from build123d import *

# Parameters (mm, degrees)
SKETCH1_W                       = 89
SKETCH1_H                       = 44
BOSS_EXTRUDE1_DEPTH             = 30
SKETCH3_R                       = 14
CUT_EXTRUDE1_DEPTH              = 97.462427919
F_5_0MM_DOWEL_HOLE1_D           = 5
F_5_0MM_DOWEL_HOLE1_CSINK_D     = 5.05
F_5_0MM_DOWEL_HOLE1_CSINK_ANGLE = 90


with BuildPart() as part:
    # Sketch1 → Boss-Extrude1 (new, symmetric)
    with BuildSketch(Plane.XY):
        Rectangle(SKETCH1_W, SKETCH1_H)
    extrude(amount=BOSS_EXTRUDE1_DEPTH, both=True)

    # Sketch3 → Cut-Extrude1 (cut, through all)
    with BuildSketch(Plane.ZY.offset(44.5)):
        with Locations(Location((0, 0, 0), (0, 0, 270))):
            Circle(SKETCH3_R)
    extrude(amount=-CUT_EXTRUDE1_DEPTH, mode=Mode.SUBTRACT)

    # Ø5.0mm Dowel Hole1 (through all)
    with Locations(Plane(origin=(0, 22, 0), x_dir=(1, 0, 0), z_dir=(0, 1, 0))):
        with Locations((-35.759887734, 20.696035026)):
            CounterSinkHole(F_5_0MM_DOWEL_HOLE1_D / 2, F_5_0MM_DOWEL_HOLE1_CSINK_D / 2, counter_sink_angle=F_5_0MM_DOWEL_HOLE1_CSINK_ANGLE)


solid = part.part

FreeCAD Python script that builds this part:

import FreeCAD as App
import Part
import Sketcher

V = App.Vector


def add_polygon(sketch, points):
    """Adds a closed chain of lines whose ends are joined by coincident constraints."""
    first, n = sketch.GeometryCount, len(points)
    for a, b in zip(points, points[1:] + points[:1]):
        sketch.addGeometry(Part.LineSegment(App.Vector(*a, 0), App.Vector(*b, 0)), False)
    for i in range(n):
        sketch.addConstraint(Sketcher.Constraint("Coincident", first + i, 2, first + (i + 1) % n, 1))

doc = App.newDocument("Part")
params = doc.addObject("Spreadsheet::Sheet", "Params")
for row, (alias, value) in enumerate([
    ("sketch1_width", "89 mm"),
    ("sketch1_height", "44 mm"),
    ("pad1_length", "60 mm"),
    ("sketch2_diameter", "28 mm"),
    ("sketch3_diameter", "5 mm"),
    ("hole_diameter", "5 mm"),
    ("hole_csink_diameter", "5.05 mm"),
], start=1):
    params.set(f"A{row}", alias)
    params.set(f"B{row}", "=" + value)
    params.setAlias(f"B{row}", alias)

body = doc.addObject("PartDesign::Body", "Body")

# Sketch on XY plane
sketch1 = doc.addObject("Sketcher::SketchObject", "Sketch")
body.addObject(sketch1)
sketch1.AttachmentSupport = (doc.XY_Plane, [""])
sketch1.MapMode = "FlatFace"
add_polygon(sketch1, [(-44.5, 22), (-44.5, -22), (44.5, -22), (44.5, 22)])  # lines 0-3
sketch1.addConstraint([
    Sketcher.Constraint("Vertical", 0),
    Sketcher.Constraint("Horizontal", 1),
    Sketcher.Constraint("Vertical", 2),
    Sketcher.Constraint("Horizontal", 3),
    Sketcher.Constraint("Symmetric", 0, 2, 2, 2, -1, 1),
    Sketcher.Constraint("DistanceX", 1, 1, 1, 2, 89.0),
    Sketcher.Constraint("DistanceY", 0, 2, 0, 1, 44.0),
])
sketch1.setExpression("Constraints[9]", "Params.sketch1_width")
sketch1.setExpression("Constraints[10]", "Params.sketch1_height")
pad1 = doc.addObject("PartDesign::Pad", "Pad")
body.addObject(pad1)
pad1.Profile = sketch1
pad1.setExpression("Length", "Params.pad1_length")
pad1.Midplane = True

# Sketch on YZ plane
sketch2 = doc.addObject("Sketcher::SketchObject", "Sketch001")
body.addObject(sketch2)
sketch2.AttachmentSupport = (doc.YZ_Plane, [""])
sketch2.MapMode = "FlatFace"
sketch2.AttachmentOffset = App.Placement(V(0, 0, -44.5), App.Rotation())
sketch2.addGeometry(Part.Circle(V(0, 0, 0), V(0, 0, 1), 14), False)
sketch2.addConstraint([
    Sketcher.Constraint("Coincident", 0, 3, -1, 1),
    Sketcher.Constraint("Diameter", 0, 28.0),
])
sketch2.setExpression("Constraints[1]", "Params.sketch2_diameter")
pocket1 = doc.addObject("PartDesign::Pocket", "Pocket")
body.addObject(pocket1)
pocket1.Profile = sketch2
pocket1.Type = "ThroughAll"
pocket1.Reversed = True

# Sketch on XZ plane
sketch3 = doc.addObject("Sketcher::SketchObject", "Sketch002")
body.addObject(sketch3)
sketch3.AttachmentSupport = (doc.XZ_Plane, [""])
sketch3.MapMode = "FlatFace"
sketch3.AttachmentOffset = App.Placement(V(0, 0, -22), App.Rotation())
sketch3.addGeometry(Part.Circle(V(-35.759888, -20.696035, 0), V(0, 0, 1), 2.5), False)
sketch3.addConstraint([
    Sketcher.Constraint("Diameter", 0, 5.0),
    Sketcher.Constraint("DistanceX", 0, 3, -1, 1, 35.759888),
    Sketcher.Constraint("DistanceY", 0, 3, -1, 1, 20.696035),
])
sketch3.setExpression("Constraints[0]", "Params.sketch3_diameter")
doc.recompute()
hole = doc.addObject("PartDesign::Hole", "Hole")
body.addObject(hole)
hole.Profile = sketch3
hole.ThreadType = "None"
hole.setExpression("Diameter", "Params.hole_diameter")
hole.DepthType = "ThroughAll"
hole.HoleCutType = "Countersink"
hole.setExpression("HoleCutDiameter", "Params.hole_csink_diameter")
hole.HoleCutCountersinkAngle = 90
hole.Reversed = True

doc.recompute()
